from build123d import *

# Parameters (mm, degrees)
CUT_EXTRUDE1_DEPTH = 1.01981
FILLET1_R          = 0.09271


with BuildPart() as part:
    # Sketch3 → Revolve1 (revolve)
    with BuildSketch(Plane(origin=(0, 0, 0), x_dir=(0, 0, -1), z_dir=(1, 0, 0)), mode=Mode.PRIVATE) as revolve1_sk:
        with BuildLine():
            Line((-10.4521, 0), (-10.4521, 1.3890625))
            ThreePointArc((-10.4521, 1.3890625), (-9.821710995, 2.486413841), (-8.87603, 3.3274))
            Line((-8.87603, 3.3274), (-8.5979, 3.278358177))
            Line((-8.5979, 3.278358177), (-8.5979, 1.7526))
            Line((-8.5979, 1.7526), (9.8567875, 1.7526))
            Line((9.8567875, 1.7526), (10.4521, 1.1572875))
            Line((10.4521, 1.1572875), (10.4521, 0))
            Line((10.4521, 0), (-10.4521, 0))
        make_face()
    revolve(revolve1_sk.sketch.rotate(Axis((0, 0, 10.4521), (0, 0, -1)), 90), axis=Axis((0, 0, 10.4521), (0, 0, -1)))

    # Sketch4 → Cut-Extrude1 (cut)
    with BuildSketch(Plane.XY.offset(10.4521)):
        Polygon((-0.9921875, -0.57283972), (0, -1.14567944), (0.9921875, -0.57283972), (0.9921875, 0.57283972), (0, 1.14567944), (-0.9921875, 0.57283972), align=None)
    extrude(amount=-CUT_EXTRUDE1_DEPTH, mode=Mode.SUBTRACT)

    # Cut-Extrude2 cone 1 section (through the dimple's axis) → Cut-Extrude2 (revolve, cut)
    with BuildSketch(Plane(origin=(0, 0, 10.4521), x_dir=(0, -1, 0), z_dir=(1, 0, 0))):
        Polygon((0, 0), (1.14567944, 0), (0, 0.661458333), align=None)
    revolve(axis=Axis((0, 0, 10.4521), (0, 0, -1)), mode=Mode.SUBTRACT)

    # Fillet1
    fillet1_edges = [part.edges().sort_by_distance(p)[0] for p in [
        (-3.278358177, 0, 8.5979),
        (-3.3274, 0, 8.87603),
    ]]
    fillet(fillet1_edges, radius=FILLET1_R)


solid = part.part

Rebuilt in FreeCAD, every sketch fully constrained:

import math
import FreeCAD as App
import Part
import Sketcher

V = App.Vector
Q = App.Units.Quantity


def edges_at(feature, points):
    """Names of the edges that pass closest to the given points."""
    edges = feature.Shape.Edges
    near = lambda p: min(range(len(edges)), key=lambda i: edges[i].distToShape(Part.Vertex(*p))[0])
    return sorted({f"Edge{near(p) + 1}" for p in points})


def add_polygon(sketch, points):
    """Adds a closed chain of lines whose ends are joined by coincident constraints."""
    first, n = sketch.GeometryCount, len(points)
    for a, b in zip(points, points[1:] + points[:1]):
        sketch.addGeometry(Part.LineSegment(App.Vector(*a, 0), App.Vector(*b, 0)), False)
    for i in range(n):
        sketch.addConstraint(Sketcher.Constraint("Coincident", first + i, 2, first + (i + 1) % n, 1))

doc = App.newDocument("Part")
body = doc.addObject("PartDesign::Body", "Body")

# Sketch on YZ plane
sketch1 = body.newObject("Sketcher::SketchObject", "Sketch")
sketch1.AttachmentSupport = (doc.getObject("YZ_Plane"), [""])
sketch1.MapMode = "FlatFace"
sketch1.addGeometry(Part.LineSegment(V(1.39, 10.45, 0), V(0, 10.45, 0)), False)
sketch1.addGeometry(Part.LineSegment(V(0, 10.45, 0), V(0, -10.45, 0)), False)
sketch1.addGeometry(Part.LineSegment(V(0, -10.45, 0), V(1.16, -10.45, 0)), False)
sketch1.addGeometry(Part.LineSegment(V(1.16, -10.45, 0), V(1.75, -9.86, 0)), False)
sketch1.addGeometry(Part.LineSegment(V(1.75, -9.86, 0), V(1.75, 8.6, 0)), False)
sketch1.addGeometry(Part.LineSegment(V(1.75, 8.6, 0), V(3.28, 8.6, 0)), False)
sketch1.addGeometry(Part.LineSegment(V(3.28, 8.6, 0), V(3.33, 8.88, 0)), False)
sketch1.addGeometry(Part.ArcOfCircle(Part.Circle(V(0, 6.76, 0), V(0, 0, 1), 3.94), math.radians(32), math.radians(69)), False)
sketch1.addConstraint(Sketcher.Constraint("Coincident", 0, 2, 1, 1))
sketch1.addConstraint(Sketcher.Constraint("Coincident", 1, 2, 2, 1))
sketch1.addConstraint(Sketcher.Constraint("Coincident", 2, 2, 3, 1))
sketch1.addConstraint(Sketcher.Constraint("Coincident", 3, 2, 4, 1))
sketch1.addConstraint(Sketcher.Constraint("Coincident", 4, 2, 5, 1))
sketch1.addConstraint(Sketcher.Constraint("Coincident", 5, 2, 6, 1))
sketch1.addConstraint(Sketcher.Constraint("Coincident", 6, 2, 7, 1))
sketch1.addConstraint(Sketcher.Constraint("Coincident", 7, 2, 0, 1))
sketch1.addConstraint(Sketcher.Constraint("Horizontal", 0))
sketch1.addConstraint(Sketcher.Constraint("Vertical", 1))
sketch1.addConstraint(Sketcher.Constraint("Horizontal", 2))
sketch1.addConstraint(Sketcher.Constraint("Vertical", 4))
sketch1.addConstraint(Sketcher.Constraint("Horizontal", 5))
sketch1.addConstraint(Sketcher.Constraint("Symmetric", 0, 2, 1, 2, -1, 1))
sketch1.addConstraint(Sketcher.Constraint("PointOnObject", 7, 3, -2))
sketch1.addConstraint(Sketcher.Constraint("Angle", 3, Q("45 deg")))
sketch1.addConstraint(Sketcher.Constraint("Angle", 6, Q("80 deg")))
sketch1.addConstraint(Sketcher.Constraint("DistanceY", 1, 2, 1, 1, Q("0.823 in")))
sketch1.addConstraint(Sketcher.Constraint("DistanceY", 2, 2, 4, 2, Q("0.75 in")))
sketch1.addConstraint(Sketcher.Constraint("DistanceX", -1, 1, 3, 2, Q("0.069 in")))
sketch1.addConstraint(Sketcher.Constraint("DistanceX", -1, 1, 6, 2, Q("0.131 in")))
sketch1.addConstraint(Sketcher.Constraint("Radius", 7, Q("3.941216 mm")))
sketch1.addConstraint(Sketcher.Constraint("Distance", 3, Q("0.841899 mm")))
sketch1.addConstraint(Sketcher.Constraint("DistanceX", 5, 1, 5, 2, Q("1.525758 mm")))
revolution = body.newObject("PartDesign::Revolution", "Revolution")
revolution.Profile = sketch1
revolution.ReferenceAxis = (sketch1, ["V_Axis"])
revolution.Angle = 360

# Sketch on XY plane
sketch2 = body.newObject("Sketcher::SketchObject", "Sketch001")
sketch2.AttachmentSupport = (doc.getObject("XY_Plane"), [""])
sketch2.MapMode = "FlatFace"
sketch2.AttachmentOffset = App.Placement(V(0, 0, 0.4115 * 25.4), App.Rotation())
add_polygon(sketch2, [(-1, -0.6), (0, -1.1), (1, -0.6), (1, 0.6), (0, 1.1), (-1, 0.6)])  # lines 0-5
sketch2.addConstraint(Sketcher.Constraint("Vertical", 2))
sketch2.addConstraint(Sketcher.Constraint("Vertical", 5))
sketch2.addConstraint(Sketcher.Constraint("Symmetric", 0, 2, 3, 2, -1, 1))
sketch2.addConstraint(Sketcher.Constraint("Symmetric", 1, 2, 4, 2, -1, 1))
sketch2.addConstraint(Sketcher.Constraint("PointOnObject", 0, 2, -2))
sketch2.addConstraint(Sketcher.Constraint("Parallel", 0, 3))
sketch2.addConstraint(Sketcher.Constraint("Horizontal", 2, 2, 4, 2))
sketch2.addConstraint(Sketcher.Constraint("Angle", 0, Q("-30 deg")))
sketch2.addConstraint(Sketcher.Constraint("DistanceX", 4, 2, 2, 2, Q("0.078125 in")))
sketch2.addConstraint(Sketcher.Constraint("DistanceY", 2, 1, 2, 2, Q("1.145679 mm")))
pocket1 = body.newObject("PartDesign::Pocket", "Pocket")
pocket1.Profile = sketch2
pocket1.Length = 1.01981

# Sketch on YZ plane
sketch3 = body.newObject("Sketcher::SketchObject", "Sketch002")
sketch3.AttachmentSupport = (doc.getObject("YZ_Plane"), [""])
sketch3.MapMode = "FlatFace"
add_polygon(sketch3, [(0, 10.5), (-1.1, 10.5), (0, 9.8)])  # lines 0-2
sketch3.addConstraint(Sketcher.Constraint("Horizontal", 0))
sketch3.addConstraint(Sketcher.Constraint("Vertical", 2))
sketch3.addConstraint(Sketcher.Constraint("PointOnObject", 1, 2, -2))
sketch3.addConstraint(Sketcher.Constraint("Angle", 1, Q("-30 deg")))
sketch3.addConstraint(Sketcher.Constraint("DistanceY", -1, 1, 0, 2, Q("0.4115 in")))
sketch3.addConstraint(Sketcher.Constraint("DistanceX", 0, 2, 0, 1, Q("1.145679 mm")))
groove = body.newObject("PartDesign::Groove", "Groove")
groove.Profile = sketch3
groove.ReferenceAxis = (sketch3, ["V_Axis"])
groove.Angle = 360
doc.recompute()

fillet = body.newObject("PartDesign::Fillet", "Fillet")
fillet.Base = (groove, edges_at(groove, [(-3.278, 0, 8.598), (-3.327, 0, 8.876)]))
fillet.Radius = 0.09271

doc.recompute()
